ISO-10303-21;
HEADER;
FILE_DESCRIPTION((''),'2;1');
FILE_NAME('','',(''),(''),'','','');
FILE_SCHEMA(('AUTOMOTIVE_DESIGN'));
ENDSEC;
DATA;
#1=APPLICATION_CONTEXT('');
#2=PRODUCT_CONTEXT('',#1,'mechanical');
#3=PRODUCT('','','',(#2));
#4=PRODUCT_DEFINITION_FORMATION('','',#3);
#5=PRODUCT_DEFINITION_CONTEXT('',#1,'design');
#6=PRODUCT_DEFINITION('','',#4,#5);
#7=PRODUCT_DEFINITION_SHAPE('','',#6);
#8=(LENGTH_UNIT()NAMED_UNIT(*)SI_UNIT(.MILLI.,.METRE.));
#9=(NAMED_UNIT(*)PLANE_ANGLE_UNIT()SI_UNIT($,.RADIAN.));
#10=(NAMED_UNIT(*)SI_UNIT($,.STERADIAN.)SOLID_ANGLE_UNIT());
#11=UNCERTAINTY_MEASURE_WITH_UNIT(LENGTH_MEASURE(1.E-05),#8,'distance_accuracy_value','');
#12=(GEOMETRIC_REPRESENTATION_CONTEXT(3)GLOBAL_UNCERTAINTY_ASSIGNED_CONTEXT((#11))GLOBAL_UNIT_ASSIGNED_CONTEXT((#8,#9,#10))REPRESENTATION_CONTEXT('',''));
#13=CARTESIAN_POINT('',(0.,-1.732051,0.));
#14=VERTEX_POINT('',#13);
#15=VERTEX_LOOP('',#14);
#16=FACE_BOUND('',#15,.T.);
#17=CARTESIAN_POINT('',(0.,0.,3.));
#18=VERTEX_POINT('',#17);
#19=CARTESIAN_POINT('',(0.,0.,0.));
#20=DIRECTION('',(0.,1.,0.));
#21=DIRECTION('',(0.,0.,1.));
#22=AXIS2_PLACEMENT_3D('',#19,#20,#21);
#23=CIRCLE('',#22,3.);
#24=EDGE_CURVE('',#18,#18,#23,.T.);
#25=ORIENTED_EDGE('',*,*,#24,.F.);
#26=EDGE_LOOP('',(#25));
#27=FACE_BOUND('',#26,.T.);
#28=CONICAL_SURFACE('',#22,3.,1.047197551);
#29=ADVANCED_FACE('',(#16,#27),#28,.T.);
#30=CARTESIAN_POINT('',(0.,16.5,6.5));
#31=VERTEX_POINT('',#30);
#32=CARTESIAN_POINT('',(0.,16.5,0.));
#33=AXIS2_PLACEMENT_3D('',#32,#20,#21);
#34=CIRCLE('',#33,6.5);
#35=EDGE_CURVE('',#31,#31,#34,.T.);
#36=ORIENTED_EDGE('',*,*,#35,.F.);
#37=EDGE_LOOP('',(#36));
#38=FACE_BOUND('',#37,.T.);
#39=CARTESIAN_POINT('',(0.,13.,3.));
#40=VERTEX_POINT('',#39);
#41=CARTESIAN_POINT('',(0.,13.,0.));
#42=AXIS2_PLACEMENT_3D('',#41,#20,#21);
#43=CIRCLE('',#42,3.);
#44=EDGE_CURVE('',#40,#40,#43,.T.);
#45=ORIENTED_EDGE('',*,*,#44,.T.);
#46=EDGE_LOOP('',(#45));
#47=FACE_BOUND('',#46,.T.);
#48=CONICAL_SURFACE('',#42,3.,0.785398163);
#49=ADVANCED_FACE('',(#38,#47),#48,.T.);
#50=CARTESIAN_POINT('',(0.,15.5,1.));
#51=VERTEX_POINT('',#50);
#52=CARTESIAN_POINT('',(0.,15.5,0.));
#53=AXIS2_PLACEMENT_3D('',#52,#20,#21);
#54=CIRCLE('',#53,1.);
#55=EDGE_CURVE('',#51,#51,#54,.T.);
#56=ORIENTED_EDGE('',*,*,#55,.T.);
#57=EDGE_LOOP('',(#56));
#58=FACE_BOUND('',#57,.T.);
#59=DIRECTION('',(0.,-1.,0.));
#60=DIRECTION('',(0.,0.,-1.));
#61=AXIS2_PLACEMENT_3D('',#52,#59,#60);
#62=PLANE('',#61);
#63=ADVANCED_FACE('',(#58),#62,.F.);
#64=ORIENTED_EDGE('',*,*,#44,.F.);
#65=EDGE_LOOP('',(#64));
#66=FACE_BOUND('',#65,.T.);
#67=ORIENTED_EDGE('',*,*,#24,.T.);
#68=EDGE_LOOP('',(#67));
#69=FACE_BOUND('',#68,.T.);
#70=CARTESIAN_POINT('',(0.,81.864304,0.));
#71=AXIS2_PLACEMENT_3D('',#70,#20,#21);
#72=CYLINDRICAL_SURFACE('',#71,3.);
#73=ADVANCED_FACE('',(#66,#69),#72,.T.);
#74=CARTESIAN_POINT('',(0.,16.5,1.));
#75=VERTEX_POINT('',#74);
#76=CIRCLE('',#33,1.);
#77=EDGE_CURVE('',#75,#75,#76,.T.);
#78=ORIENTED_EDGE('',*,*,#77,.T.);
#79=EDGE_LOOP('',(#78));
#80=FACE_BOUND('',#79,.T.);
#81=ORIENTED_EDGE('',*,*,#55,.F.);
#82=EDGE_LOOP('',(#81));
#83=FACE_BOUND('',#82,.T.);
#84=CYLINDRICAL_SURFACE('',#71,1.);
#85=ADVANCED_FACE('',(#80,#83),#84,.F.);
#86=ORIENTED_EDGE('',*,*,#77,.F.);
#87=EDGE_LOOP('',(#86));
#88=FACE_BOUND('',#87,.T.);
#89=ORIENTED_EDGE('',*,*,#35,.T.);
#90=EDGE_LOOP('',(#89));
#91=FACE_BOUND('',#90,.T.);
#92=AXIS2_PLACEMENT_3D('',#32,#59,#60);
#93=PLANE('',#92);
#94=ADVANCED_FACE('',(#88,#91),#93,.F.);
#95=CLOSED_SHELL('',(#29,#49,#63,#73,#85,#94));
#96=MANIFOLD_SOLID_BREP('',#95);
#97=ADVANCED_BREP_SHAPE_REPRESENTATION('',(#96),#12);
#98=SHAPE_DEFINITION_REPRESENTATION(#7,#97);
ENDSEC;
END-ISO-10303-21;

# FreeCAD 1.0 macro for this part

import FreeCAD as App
import Part
import Sketcher
from FreeCAD import Vector
Q = App.Units.Quantity


def add_polygon(sketch, points):
    """Adds a closed chain of lines whose ends are joined by coincident constraints."""
    first, n = sketch.GeometryCount, len(points)
    for a, b in zip(points, points[1:] + points[:1]):
        sketch.addGeometry(Part.LineSegment(App.Vector(*a, 0), App.Vector(*b, 0)), False)
    for i in range(n):
        sketch.addConstraint(Sketcher.Constraint("Coincident", first + i, 2, first + (i + 1) % n, 1))

doc = App.newDocument("Part")
body = doc.addObject("PartDesign::Body", "Body")

# Sketch on XY plane
sketch1 = body.newObject("Sketcher::SketchObject", "Sketch")
sketch1.AttachmentSupport = (doc.getObject("XY_Plane"), [""])
sketch1.MapMode = "FlatFace"
add_polygon(sketch1, [(0, -1.732051), (0, 15.5), (-1, 15.5), (-1, 16.5), (-6.5, 16.5), (-3, 13), (-3, 0)])  # lines 0-6
sketch1.addConstraint(Sketcher.Constraint("Vertical", 0))
sketch1.addConstraint(Sketcher.Constraint("Horizontal", 1))
sketch1.addConstraint(Sketcher.Constraint("Vertical", 2))
sketch1.addConstraint(Sketcher.Constraint("Horizontal", 3))
sketch1.addConstraint(Sketcher.Constraint("Vertical", 5))
sketch1.addConstraint(Sketcher.Constraint("PointOnObject", 0, 2, -2))
sketch1.addConstraint(Sketcher.Constraint("PointOnObject", 5, 2, -1))
sketch1.addConstraint(Sketcher.Constraint("Equal", 1, 2))
sketch1.addConstraint(Sketcher.Constraint("DistanceX", 1, 2, 1, 1, 1.0))
sketch1.addConstraint(Sketcher.Constraint("DistanceY", 5, 2, 5, 1, 13.0))
sketch1.addConstraint(Sketcher.Constraint("Angle", 4, Q("-45 deg")))
sketch1.addConstraint(Sketcher.Constraint("Angle", 6, Q("-30 deg")))
sketch1.addConstraint(Sketcher.Constraint("DistanceX", 3, 2, 3, 1, 5.5))
sketch1.addConstraint(Sketcher.Constraint("DistanceX", 4, 2, -1, 1, 3.0))
revolution = body.newObject("PartDesign::Revolution", "Revolution")
revolution.Profile = sketch1
revolution.ReferenceAxis = (sketch1, ["V_Axis"])
revolution.Angle = 360

doc.recompute()
